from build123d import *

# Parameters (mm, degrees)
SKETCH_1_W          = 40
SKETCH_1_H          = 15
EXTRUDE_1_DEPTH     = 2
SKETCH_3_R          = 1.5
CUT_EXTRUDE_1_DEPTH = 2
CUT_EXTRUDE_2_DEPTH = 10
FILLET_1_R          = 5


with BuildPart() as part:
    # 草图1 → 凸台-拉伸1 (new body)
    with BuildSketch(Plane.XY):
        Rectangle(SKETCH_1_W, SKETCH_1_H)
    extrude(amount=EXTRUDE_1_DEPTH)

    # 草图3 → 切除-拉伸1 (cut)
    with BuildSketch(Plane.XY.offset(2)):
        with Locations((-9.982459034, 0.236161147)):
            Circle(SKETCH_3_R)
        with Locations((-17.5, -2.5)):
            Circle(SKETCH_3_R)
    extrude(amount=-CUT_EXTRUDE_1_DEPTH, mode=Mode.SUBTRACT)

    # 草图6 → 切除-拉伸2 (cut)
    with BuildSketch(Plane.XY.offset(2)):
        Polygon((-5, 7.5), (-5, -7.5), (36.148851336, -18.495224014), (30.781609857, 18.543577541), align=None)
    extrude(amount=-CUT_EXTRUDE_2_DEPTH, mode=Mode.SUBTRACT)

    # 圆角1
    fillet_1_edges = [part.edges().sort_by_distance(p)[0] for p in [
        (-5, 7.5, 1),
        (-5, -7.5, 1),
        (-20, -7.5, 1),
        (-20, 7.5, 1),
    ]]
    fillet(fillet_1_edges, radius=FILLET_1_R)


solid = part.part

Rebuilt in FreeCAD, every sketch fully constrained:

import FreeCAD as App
import Part
import Sketcher

V = App.Vector
Q = App.Units.Quantity


def edges_at(feature, points):
    """Names of the edges that pass closest to the given points."""
    edges = feature.Shape.Edges
    near = lambda p: min(range(len(edges)), key=lambda i: edges[i].distToShape(Part.Vertex(*p))[0])
    return sorted({f"Edge{near(p) + 1}" for p in points})

doc = App.newDocument("Part")
body = doc.addObject("PartDesign::Body", "Body")

# Sketch on XY plane
sketch1 = body.newObject("Sketcher::SketchObject", "Sketch")
sketch1.AttachmentSupport = (doc.getObject("XY_Plane"), [""])
sketch1.MapMode = "FlatFace"
sketch1.addGeometry(Part.LineSegment(V(-20, 8, 0), V(-20, -8, 0)), False)
sketch1.addGeometry(Part.LineSegment(V(-20, -8, 0), V(20, -8, 0)), False)
sketch1.addGeometry(Part.LineSegment(V(20, -8, 0), V(20, 8, 0)), False)
sketch1.addGeometry(Part.LineSegment(V(20, 8, 0), V(-20, 8, 0)), False)
sketch1.addConstraint(Sketcher.Constraint("Coincident", 0, 2, 1, 1))
sketch1.addConstraint(Sketcher.Constraint("Coincident", 1, 2, 2, 1))
sketch1.addConstraint(Sketcher.Constraint("Coincident", 2, 2, 3, 1))
sketch1.addConstraint(Sketcher.Constraint("Coincident", 3, 2, 0, 1))
sketch1.addConstraint(Sketcher.Constraint("Vertical", 0))
sketch1.addConstraint(Sketcher.Constraint("Horizontal", 1))
sketch1.addConstraint(Sketcher.Constraint("Vertical", 2))
sketch1.addConstraint(Sketcher.Constraint("Horizontal", 3))
sketch1.addConstraint(Sketcher.Constraint("Symmetric", 0, 2, 2, 2, -1, 1))
sketch1.addConstraint(Sketcher.Constraint("DistanceX", 1, 1, 1, 2, Q("40 mm")))
sketch1.addConstraint(Sketcher.Constraint("DistanceY", 0, 2, 0, 1, Q("15 mm")))
pad1 = body.newObject("PartDesign::Pad", "Pad")
pad1.Profile = sketch1
pad1.Length = 2

# Sketch on XY plane
sketch2 = body.newObject("Sketcher::SketchObject", "Sketch001")
sketch2.AttachmentSupport = (doc.getObject("XY_Plane"), [""])
sketch2.MapMode = "FlatFace"
sketch2.AttachmentOffset = App.Placement(V(0, 0, 2), App.Rotation())
sketch2.addGeometry(Part.Circle(V(-10, 0.2, 0), V(0, 0, 1), 1.5), False)
sketch2.addGeometry(Part.Circle(V(-17.5, -2.5, 0), V(0, 0, 1), 1.5), False)
sketch2.addConstraint(Sketcher.Constraint("Equal", 0, 1))
sketch2.addConstraint(Sketcher.Constraint("Diameter", 0, Q("3 mm")))
sketch2.addConstraint(Sketcher.Constraint("DistanceX", 1, 3, -1, 1, Q("17.5 mm")))
sketch2.addConstraint(Sketcher.Constraint("DistanceY", 1, 3, -1, 1, Q("2.5 mm")))
sketch2.addConstraint(Sketcher.Constraint("DistanceX", 0, 3, -1, 1, Q("9.982459 mm")))
sketch2.addConstraint(Sketcher.Constraint("DistanceY", -1, 1, 0, 3, Q("0.236161 mm")))
pocket1 = body.newObject("PartDesign::Pocket", "Pocket")
pocket1.Profile = sketch2
pocket1.Length = 2

# Sketch on XY plane
sketch3 = body.newObject("Sketcher::SketchObject", "Sketch002")
sketch3.AttachmentSupport = (doc.getObject("XY_Plane"), [""])
sketch3.MapMode = "FlatFace"
sketch3.AttachmentOffset = App.Placement(V(0, 0, 2), App.Rotation())
sketch3.addGeometry(Part.LineSegment(V(-5, 8, 0), V(-5, -8, 0)), False)
sketch3.addGeometry(Part.LineSegment(V(-5, -8, 0), V(36, -18, 0)), False)
sketch3.addGeometry(Part.LineSegment(V(36, -18, 0), V(31, 19, 0)), False)
sketch3.addGeometry(Part.LineSegment(V(31, 19, 0), V(-5, 8, 0)), False)
sketch3.addConstraint(Sketcher.Constraint("Coincident", 0, 2, 1, 1))
sketch3.addConstraint(Sketcher.Constraint("Coincident", 1, 2, 2, 1))
sketch3.addConstraint(Sketcher.Constraint("Coincident", 2, 2, 3, 1))
sketch3.addConstraint(Sketcher.Constraint("Coincident", 3, 2, 0, 1))
sketch3.addConstraint(Sketcher.Constraint("Vertical", 0))
sketch3.addConstraint(Sketcher.Constraint("DistanceY", 0, 2, 0, 1, Q("15 mm")))
sketch3.addConstraint(Sketcher.Constraint("DistanceX", 0, 2, -1, 1, Q("5 mm")))
sketch3.addConstraint(Sketcher.Constraint("DistanceY", 0, 2, -1, 1, Q("7.5 mm")))
sketch3.addConstraint(Sketcher.Constraint("DistanceY", 1, 2, 2, 2, Q("37.038802 mm")))
sketch3.addConstraint(Sketcher.Constraint("Distance", 1, Q("42.592522 mm")))
sketch3.addConstraint(Sketcher.Constraint("Distance", 2, Q("37.425661 mm")))
sketch3.addConstraint(Sketcher.Constraint("DistanceX", -1, 1, 1, 2, Q("36.148851 mm")))
pocket2 = body.newObject("PartDesign::Pocket", "Pocket001")
pocket2.Profile = sketch3
pocket2.Length = 10
doc.recompute()

fillet = body.newObject("PartDesign::Fillet", "Fillet")
fillet.Base = (pocket2, edges_at(pocket2, [
    (-5, 7.5, 1),
    (-5, -7.5, 1),
    (-20, -7.5, 1),
    (-20, 7.5, 1),
]))
fillet.Radius = 5

doc.recompute()
